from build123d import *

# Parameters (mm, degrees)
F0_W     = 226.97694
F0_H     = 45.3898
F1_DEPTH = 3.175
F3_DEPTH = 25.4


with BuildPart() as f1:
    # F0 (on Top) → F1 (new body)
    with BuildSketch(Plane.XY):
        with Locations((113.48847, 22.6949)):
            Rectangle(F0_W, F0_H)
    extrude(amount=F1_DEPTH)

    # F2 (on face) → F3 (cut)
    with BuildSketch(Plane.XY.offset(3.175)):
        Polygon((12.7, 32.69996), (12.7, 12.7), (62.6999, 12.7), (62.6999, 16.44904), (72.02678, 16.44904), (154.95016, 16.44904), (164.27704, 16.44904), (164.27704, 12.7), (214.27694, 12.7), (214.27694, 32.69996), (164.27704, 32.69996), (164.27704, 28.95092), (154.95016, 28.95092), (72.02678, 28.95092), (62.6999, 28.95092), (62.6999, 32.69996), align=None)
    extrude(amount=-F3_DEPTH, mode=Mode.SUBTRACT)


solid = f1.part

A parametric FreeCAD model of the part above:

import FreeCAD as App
import Part
import Sketcher

V = App.Vector
Q = App.Units.Quantity

doc = App.newDocument("Part")
body = doc.addObject("PartDesign::Body", "Body")

# Sketch on XY plane
sketch1 = doc.addObject("Sketcher::SketchObject", "Sketch")
body.addObject(sketch1)
sketch1.AttachmentSupport = (doc.XY_Plane, [""])
sketch1.MapMode = "FlatFace"
sketch1.addGeometry([
    Part.LineSegment(V(0, 45, 0), V(0, 0, 0)),
    Part.LineSegment(V(0, 0, 0), V(227, 0, 0)),
    Part.LineSegment(V(227, 0, 0), V(227, 45, 0)),
    Part.LineSegment(V(227, 45, 0), V(0, 45, 0)),
], False)
sketch1.addConstraint([
    Sketcher.Constraint("Coincident", 0, 2, 1, 1),
    Sketcher.Constraint("Coincident", 1, 2, 2, 1),
    Sketcher.Constraint("Coincident", 2, 2, 3, 1),
    Sketcher.Constraint("Coincident", 3, 2, 0, 1),
    Sketcher.Constraint("Vertical", 0),
    Sketcher.Constraint("Horizontal", 1),
    Sketcher.Constraint("Vertical", 2),
    Sketcher.Constraint("Horizontal", 3),
    Sketcher.Constraint("Coincident", 0, 2, -1, 1),
    Sketcher.Constraint("DistanceY", 0, 2, 0, 1, Q("1.787 in")),
    Sketcher.Constraint("DistanceX", 1, 1, 1, 2, Q("8.9361 in")),
])
pad1 = doc.addObject("PartDesign::Pad", "Pad")
body.addObject(pad1)
pad1.Profile = sketch1
pad1.Length = Q("0.125 in")

# Sketch on XY plane
sketch2 = doc.addObject("Sketcher::SketchObject", "Sketch001")
body.addObject(sketch2)
sketch2.AttachmentSupport = (doc.XY_Plane, [""])
sketch2.MapMode = "FlatFace"
sketch2.AttachmentOffset = App.Placement(V(0, 0, 0.125 * 25.4), App.Rotation())
sketch2.addGeometry([
    Part.LineSegment(V(12.7, 32.7, 0), V(12.7, 12.7, 0)),  # 0
    Part.LineSegment(V(12.7, 12.7, 0), V(62.7, 12.7, 0)),  # 1
    Part.LineSegment(V(62.7, 12.7, 0), V(62.7, 16.4, 0)),  # 2
    Part.LineSegment(V(62.7, 16.4, 0), V(164.3, 16.4, 0)),  # 3
    Part.LineSegment(V(164.3, 16.4, 0), V(164.3, 12.7, 0)),  # 4
    Part.LineSegment(V(164.3, 12.7, 0), V(214.3, 12.7, 0)),  # 5
    Part.LineSegment(V(214.3, 12.7, 0), V(214.3, 32.7, 0)),  # 6
    Part.LineSegment(V(214.3, 32.7, 0), V(164.3, 32.7, 0)),  # 7
    Part.LineSegment(V(164.3, 32.7, 0), V(164.3, 29, 0)),  # 8
    Part.LineSegment(V(164.3, 29, 0), V(62.7, 29, 0)),  # 9
    Part.LineSegment(V(62.7, 29, 0), V(62.7, 32.7, 0)),  # 10
    Part.LineSegment(V(62.7, 32.7, 0), V(12.7, 32.7, 0)),  # 11
], False)
sketch2.addConstraint([
    Sketcher.Constraint("Coincident", 0, 2, 1, 1),
    Sketcher.Constraint("Coincident", 1, 2, 2, 1),
    Sketcher.Constraint("Coincident", 2, 2, 3, 1),
    Sketcher.Constraint("Coincident", 3, 2, 4, 1),
    Sketcher.Constraint("Coincident", 4, 2, 5, 1),
    Sketcher.Constraint("Coincident", 5, 2, 6, 1),
    Sketcher.Constraint("Coincident", 6, 2, 7, 1),
    Sketcher.Constraint("Coincident", 7, 2, 8, 1),
    Sketcher.Constraint("Coincident", 8, 2, 9, 1),
    Sketcher.Constraint("Coincident", 9, 2, 10, 1),
    Sketcher.Constraint("Coincident", 10, 2, 11, 1),
    Sketcher.Constraint("Coincident", 11, 2, 0, 1),
    Sketcher.Constraint("Vertical", 0),
    Sketcher.Constraint("Horizontal", 1),
    Sketcher.Constraint("Vertical", 2),
    Sketcher.Constraint("Horizontal", 3),
    Sketcher.Constraint("Vertical", 4),
    Sketcher.Constraint("Horizontal", 5),
    Sketcher.Constraint("Vertical", 6),
    Sketcher.Constraint("Horizontal", 7),
    Sketcher.Constraint("Vertical", 8),
    Sketcher.Constraint("Horizontal", 9),
    Sketcher.Constraint("Vertical", 10),
    Sketcher.Constraint("Horizontal", 11),
    Sketcher.Constraint("Horizontal", 1, 2, 4, 2),
    Sketcher.Constraint("Horizontal", 7, 2, 10, 2),
    Sketcher.Constraint("Vertical", 4, 2, 7, 2),
    Sketcher.Constraint("Vertical", 2, 2, 9, 2),
    Sketcher.Constraint("Equal", 1, 5),
    Sketcher.Constraint("Equal", 4, 8),
    Sketcher.Constraint("DistanceX", -1, 1, 0, 2, Q("0.5 in")),
    Sketcher.Constraint("DistanceY", -1, 1, 0, 2, Q("0.5 in")),
    Sketcher.Constraint("DistanceX", 1, 1, 1, 2, Q("1.9685 in")),
    Sketcher.Constraint("DistanceX", 3, 1, 3, 2, Q("3.9991 in")),
    Sketcher.Constraint("DistanceY", 0, 2, 0, 1, Q("0.7874 in")),
    Sketcher.Constraint("DistanceY", 2, 1, 2, 2, Q("0.1476 in")),
])
pocket1 = doc.addObject("PartDesign::Pocket", "Pocket")
body.addObject(pocket1)
pocket1.Profile = sketch2
pocket1.Length = Q("1 in")

doc.recompute()
